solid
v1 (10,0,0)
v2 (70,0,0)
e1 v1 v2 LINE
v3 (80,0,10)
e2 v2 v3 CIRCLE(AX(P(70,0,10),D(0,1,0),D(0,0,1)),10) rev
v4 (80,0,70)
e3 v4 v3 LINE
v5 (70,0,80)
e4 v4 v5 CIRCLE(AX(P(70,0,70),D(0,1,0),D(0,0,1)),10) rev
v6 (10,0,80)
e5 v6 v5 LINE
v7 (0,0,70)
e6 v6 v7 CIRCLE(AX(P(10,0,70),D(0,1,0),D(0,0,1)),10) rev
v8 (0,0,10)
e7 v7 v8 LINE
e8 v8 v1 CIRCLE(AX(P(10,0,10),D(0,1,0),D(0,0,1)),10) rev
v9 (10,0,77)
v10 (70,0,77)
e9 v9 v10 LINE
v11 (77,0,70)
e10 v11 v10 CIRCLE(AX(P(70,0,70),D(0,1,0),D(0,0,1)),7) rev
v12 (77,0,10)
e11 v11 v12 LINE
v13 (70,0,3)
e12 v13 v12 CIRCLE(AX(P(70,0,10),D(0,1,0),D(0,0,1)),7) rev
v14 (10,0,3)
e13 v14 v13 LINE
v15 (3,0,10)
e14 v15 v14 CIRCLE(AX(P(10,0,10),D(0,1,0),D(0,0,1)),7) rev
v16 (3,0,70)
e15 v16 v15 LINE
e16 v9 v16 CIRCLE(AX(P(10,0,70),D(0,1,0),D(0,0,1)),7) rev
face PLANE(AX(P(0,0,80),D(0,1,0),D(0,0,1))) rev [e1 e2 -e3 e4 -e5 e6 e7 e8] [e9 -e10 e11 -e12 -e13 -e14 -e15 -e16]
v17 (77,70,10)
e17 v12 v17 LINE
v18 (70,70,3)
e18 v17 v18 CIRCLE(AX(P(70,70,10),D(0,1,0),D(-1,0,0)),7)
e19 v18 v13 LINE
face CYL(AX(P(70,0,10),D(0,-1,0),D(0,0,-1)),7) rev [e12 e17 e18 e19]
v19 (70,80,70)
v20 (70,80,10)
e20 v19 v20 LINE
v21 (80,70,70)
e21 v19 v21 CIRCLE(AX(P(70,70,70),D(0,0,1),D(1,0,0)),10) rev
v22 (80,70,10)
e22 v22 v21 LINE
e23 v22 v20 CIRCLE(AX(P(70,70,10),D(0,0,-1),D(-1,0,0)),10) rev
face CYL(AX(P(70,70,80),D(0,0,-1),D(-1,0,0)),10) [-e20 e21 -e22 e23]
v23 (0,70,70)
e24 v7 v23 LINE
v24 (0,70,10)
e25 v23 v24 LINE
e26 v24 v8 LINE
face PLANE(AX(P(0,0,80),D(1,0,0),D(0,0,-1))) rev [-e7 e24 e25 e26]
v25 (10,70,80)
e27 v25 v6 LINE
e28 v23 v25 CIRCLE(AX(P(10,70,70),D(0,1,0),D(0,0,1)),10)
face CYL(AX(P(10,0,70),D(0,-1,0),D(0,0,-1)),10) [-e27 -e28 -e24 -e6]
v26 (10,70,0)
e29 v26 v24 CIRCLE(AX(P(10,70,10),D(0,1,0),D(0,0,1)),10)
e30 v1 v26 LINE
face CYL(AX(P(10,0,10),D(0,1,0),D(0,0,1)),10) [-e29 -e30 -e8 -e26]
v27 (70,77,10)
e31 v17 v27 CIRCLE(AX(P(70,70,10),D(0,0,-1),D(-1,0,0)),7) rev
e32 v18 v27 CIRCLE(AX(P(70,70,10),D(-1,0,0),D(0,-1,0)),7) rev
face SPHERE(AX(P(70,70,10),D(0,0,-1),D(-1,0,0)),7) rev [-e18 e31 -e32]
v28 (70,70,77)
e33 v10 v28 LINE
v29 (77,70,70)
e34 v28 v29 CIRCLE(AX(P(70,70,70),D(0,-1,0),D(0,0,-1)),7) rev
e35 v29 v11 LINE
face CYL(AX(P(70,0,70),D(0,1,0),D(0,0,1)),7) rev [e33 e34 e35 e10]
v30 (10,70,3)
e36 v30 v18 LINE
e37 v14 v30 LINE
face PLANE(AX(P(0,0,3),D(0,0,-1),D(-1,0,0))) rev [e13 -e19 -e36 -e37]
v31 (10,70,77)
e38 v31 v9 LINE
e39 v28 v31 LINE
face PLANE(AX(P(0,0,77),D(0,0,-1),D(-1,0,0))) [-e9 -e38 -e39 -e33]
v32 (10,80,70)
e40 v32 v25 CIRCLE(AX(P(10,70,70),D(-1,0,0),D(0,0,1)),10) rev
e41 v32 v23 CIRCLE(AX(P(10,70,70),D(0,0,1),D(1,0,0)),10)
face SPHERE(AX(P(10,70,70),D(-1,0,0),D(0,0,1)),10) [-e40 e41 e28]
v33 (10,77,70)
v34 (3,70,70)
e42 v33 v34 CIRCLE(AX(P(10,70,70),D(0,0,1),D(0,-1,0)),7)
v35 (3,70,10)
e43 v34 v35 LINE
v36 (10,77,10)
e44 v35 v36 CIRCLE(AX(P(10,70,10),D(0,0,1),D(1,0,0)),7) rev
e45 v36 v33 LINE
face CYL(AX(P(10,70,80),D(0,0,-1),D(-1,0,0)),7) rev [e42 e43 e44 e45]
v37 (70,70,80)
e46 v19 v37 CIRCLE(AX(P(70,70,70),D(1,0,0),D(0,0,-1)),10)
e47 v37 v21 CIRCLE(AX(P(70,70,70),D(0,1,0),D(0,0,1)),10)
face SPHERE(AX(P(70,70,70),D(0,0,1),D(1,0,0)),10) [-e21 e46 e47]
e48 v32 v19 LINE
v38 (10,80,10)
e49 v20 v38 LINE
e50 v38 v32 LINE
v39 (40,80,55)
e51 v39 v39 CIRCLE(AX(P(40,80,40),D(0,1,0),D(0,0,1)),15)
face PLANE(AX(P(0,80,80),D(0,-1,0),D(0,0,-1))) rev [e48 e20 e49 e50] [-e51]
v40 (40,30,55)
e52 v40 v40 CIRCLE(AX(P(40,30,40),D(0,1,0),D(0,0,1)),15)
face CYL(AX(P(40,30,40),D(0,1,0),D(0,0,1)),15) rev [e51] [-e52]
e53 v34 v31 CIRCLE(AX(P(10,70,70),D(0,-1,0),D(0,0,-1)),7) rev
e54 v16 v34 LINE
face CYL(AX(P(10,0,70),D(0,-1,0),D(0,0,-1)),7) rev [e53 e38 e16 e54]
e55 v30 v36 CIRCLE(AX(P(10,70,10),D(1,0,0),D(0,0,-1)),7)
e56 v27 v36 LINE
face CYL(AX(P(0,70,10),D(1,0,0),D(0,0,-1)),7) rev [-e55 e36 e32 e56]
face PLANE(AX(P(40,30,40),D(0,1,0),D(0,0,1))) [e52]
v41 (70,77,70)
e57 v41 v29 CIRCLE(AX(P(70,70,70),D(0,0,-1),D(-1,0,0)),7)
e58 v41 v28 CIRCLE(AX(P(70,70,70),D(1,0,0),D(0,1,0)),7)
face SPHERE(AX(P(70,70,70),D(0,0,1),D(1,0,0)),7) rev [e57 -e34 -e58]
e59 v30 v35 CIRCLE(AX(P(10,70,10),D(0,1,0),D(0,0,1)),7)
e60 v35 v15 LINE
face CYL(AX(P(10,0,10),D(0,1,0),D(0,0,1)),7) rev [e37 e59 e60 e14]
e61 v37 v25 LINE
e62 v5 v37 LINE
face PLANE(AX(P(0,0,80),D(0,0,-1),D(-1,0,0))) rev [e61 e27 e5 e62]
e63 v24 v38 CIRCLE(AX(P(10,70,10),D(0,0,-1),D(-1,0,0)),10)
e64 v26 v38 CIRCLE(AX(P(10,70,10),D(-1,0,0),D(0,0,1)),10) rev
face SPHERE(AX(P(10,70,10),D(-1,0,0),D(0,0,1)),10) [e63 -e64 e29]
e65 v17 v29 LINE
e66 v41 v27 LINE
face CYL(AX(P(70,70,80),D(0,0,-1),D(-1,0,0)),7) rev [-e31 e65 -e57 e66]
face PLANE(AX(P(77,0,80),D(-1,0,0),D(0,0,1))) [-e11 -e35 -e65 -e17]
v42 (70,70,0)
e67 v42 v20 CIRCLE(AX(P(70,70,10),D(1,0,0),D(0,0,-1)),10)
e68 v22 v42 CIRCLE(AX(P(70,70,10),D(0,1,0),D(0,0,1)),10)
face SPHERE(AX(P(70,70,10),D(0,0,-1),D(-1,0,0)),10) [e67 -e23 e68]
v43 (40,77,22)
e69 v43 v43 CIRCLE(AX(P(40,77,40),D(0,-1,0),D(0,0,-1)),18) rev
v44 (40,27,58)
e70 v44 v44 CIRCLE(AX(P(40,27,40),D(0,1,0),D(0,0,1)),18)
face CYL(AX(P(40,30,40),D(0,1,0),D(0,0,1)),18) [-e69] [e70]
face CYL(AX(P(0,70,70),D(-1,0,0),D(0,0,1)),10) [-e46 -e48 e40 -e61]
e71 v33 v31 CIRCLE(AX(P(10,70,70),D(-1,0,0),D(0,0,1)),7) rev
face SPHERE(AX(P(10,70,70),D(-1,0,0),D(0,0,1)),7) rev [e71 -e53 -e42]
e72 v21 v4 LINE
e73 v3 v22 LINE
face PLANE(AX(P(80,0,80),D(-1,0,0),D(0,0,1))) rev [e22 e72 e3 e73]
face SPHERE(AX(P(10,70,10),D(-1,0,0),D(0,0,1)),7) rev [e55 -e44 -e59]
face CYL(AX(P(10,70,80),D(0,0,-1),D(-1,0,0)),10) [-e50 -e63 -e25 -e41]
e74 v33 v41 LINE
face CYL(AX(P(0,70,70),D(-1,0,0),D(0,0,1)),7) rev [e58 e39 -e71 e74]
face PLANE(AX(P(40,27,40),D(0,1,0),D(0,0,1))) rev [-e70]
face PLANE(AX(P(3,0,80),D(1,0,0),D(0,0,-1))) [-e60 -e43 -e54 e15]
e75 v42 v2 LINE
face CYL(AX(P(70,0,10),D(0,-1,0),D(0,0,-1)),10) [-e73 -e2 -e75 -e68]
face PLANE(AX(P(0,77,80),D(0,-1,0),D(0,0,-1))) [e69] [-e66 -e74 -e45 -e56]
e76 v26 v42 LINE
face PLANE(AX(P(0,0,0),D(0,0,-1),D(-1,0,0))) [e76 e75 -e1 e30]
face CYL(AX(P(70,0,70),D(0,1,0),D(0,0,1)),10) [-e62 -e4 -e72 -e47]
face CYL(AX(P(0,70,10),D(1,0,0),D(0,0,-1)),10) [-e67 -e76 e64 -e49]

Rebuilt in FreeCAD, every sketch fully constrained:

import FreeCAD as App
import Part
import Sketcher

V = App.Vector


def edges_at(feature, points):
    """Names of the edges that pass closest to the given points."""
    edges = feature.Shape.Edges
    near = lambda p: min(range(len(edges)), key=lambda i: edges[i].distToShape(Part.Vertex(*p))[0])
    return sorted({f"Edge{near(p) + 1}" for p in points})


def faces_at(feature, points):
    """Names of the faces that lie closest to the given points."""
    faces = feature.Shape.Faces
    near = lambda p: min(range(len(faces)), key=lambda i: faces[i].distToShape(Part.Vertex(*p))[0])
    return sorted({f"Face{near(p) + 1}" for p in points})

doc = App.newDocument("Part")
body = doc.addObject("PartDesign::Body", "Body")

sketch1 = body.newObject("Sketcher::SketchObject", "Sketch")
sketch1.AttachmentSupport = (doc.getObject("XY_Plane"), [""])
sketch1.MapMode = "FlatFace"
sketch1.addGeometry([
    Part.LineSegment(V(0, 80, 0), V(0, 0, 0)),
    Part.LineSegment(V(0, 0, 0), V(80, 0, 0)),
    Part.LineSegment(V(80, 0, 0), V(80, 80, 0)),
    Part.LineSegment(V(80, 80, 0), V(0, 80, 0)),
], False)
sketch1.addConstraint([
    Sketcher.Constraint("Coincident", 0, 2, 1, 1),
    Sketcher.Constraint("Coincident", 1, 2, 2, 1),
    Sketcher.Constraint("Coincident", 2, 2, 3, 1),
    Sketcher.Constraint("Coincident", 3, 2, 0, 1),
    Sketcher.Constraint("Vertical", 0),
    Sketcher.Constraint("Horizontal", 1),
    Sketcher.Constraint("Vertical", 2),
    Sketcher.Constraint("Horizontal", 3),
    Sketcher.Constraint("Coincident", 0, 2, -1, 1),
    Sketcher.Constraint("Equal", 3, 0),
    Sketcher.Constraint("DistanceX", 1, 1, 1, 2, 80.0),
])
pad1 = body.newObject("PartDesign::Pad", "Pad")
pad1.Profile = sketch1
pad1.Length = 80

sketch2 = body.newObject("Sketcher::SketchObject", "Sketch001")
sketch2.AttachmentSupport = (doc.getObject("XZ_Plane"), [""])
sketch2.MapMode = "FlatFace"
sketch2.AttachmentOffset = App.Placement(V(0, 0, -80), App.Rotation())
sketch2.addGeometry(Part.Circle(V(40, 40, 0), V(0, 0, 1), 15), False)
sketch2.addConstraint([
    Sketcher.Constraint("Diameter", 0, 30.0),
    Sketcher.Constraint("DistanceX", -1, 1, 0, 3, 40.0),
    Sketcher.Constraint("DistanceY", -1, 1, 0, 3, 40.0),
])
pocket1 = body.newObject("PartDesign::Pocket", "Pocket")
pocket1.Profile = sketch2
pocket1.Length = 50
pocket1.Reversed = True
doc.recompute()

fillet = body.newObject("PartDesign::Fillet", "Fillet")
fillet.Base = (pocket1, edges_at(pocket1, [
    (80, 40, 80),
    (40, 80, 80),
    (0, 40, 80),
    (40, 80, 0),
    (80, 40, 0),
    (0, 40, 0),
    (0, 80, 40),
    (80, 80, 40),
]))
fillet.Radius = 10
doc.recompute()

thickness = body.newObject("PartDesign::Thickness", "Thickness")
thickness.Base = (fillet, faces_at(fillet, [(40, 0, 40)]))
thickness.Value = 3
thickness.Reversed = True
thickness.Join = "Intersection"

doc.recompute()
